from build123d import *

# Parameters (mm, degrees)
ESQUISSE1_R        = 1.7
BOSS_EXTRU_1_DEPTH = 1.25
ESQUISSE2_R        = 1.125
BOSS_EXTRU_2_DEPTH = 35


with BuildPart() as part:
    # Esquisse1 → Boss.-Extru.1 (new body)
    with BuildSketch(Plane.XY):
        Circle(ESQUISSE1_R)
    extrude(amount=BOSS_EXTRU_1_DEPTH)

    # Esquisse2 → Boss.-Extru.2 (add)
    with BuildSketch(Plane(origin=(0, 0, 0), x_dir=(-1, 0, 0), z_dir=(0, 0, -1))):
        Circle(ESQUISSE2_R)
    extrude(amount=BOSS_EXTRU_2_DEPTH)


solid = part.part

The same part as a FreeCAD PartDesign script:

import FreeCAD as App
import Part
import Sketcher
Q = App.Units.Quantity

doc = App.newDocument("Part")
body = doc.addObject("PartDesign::Body", "Body")

sketch1 = doc.addObject("Sketcher::SketchObject", "Sketch")
body.addObject(sketch1)
sketch1.AttachmentSupport = (doc.XY_Plane, [""])
sketch1.MapMode = "FlatFace"
sketch1.addGeometry(Part.Circle(App.Vector(0, 0, 0), App.Vector(0, 0, 1), 1.7), False)
sketch1.addConstraint([
    Sketcher.Constraint("Coincident", 0, 3, -1, 1),
    Sketcher.Constraint("Diameter", 0, Q("3.4 mm")),
])
pad1 = doc.addObject("PartDesign::Pad", "Pad")
body.addObject(pad1)
pad1.Profile = sketch1
pad1.Length = 1.25

sketch2 = doc.addObject("Sketcher::SketchObject", "Sketch001")
body.addObject(sketch2)
sketch2.AttachmentSupport = (doc.XY_Plane, [""])
sketch2.MapMode = "FlatFace"
sketch2.addGeometry(Part.Circle(App.Vector(0, 0, 0), App.Vector(0, 0, 1), 1.125), False)
sketch2.addConstraint([
    Sketcher.Constraint("Coincident", 0, 3, -1, 1),
    Sketcher.Constraint("Diameter", 0, Q("2.25 mm")),
])
pad2 = doc.addObject("PartDesign::Pad", "Pad001")
body.addObject(pad2)
pad2.Profile = sketch2
pad2.Length = 35
pad2.Reversed = True

doc.recompute()
